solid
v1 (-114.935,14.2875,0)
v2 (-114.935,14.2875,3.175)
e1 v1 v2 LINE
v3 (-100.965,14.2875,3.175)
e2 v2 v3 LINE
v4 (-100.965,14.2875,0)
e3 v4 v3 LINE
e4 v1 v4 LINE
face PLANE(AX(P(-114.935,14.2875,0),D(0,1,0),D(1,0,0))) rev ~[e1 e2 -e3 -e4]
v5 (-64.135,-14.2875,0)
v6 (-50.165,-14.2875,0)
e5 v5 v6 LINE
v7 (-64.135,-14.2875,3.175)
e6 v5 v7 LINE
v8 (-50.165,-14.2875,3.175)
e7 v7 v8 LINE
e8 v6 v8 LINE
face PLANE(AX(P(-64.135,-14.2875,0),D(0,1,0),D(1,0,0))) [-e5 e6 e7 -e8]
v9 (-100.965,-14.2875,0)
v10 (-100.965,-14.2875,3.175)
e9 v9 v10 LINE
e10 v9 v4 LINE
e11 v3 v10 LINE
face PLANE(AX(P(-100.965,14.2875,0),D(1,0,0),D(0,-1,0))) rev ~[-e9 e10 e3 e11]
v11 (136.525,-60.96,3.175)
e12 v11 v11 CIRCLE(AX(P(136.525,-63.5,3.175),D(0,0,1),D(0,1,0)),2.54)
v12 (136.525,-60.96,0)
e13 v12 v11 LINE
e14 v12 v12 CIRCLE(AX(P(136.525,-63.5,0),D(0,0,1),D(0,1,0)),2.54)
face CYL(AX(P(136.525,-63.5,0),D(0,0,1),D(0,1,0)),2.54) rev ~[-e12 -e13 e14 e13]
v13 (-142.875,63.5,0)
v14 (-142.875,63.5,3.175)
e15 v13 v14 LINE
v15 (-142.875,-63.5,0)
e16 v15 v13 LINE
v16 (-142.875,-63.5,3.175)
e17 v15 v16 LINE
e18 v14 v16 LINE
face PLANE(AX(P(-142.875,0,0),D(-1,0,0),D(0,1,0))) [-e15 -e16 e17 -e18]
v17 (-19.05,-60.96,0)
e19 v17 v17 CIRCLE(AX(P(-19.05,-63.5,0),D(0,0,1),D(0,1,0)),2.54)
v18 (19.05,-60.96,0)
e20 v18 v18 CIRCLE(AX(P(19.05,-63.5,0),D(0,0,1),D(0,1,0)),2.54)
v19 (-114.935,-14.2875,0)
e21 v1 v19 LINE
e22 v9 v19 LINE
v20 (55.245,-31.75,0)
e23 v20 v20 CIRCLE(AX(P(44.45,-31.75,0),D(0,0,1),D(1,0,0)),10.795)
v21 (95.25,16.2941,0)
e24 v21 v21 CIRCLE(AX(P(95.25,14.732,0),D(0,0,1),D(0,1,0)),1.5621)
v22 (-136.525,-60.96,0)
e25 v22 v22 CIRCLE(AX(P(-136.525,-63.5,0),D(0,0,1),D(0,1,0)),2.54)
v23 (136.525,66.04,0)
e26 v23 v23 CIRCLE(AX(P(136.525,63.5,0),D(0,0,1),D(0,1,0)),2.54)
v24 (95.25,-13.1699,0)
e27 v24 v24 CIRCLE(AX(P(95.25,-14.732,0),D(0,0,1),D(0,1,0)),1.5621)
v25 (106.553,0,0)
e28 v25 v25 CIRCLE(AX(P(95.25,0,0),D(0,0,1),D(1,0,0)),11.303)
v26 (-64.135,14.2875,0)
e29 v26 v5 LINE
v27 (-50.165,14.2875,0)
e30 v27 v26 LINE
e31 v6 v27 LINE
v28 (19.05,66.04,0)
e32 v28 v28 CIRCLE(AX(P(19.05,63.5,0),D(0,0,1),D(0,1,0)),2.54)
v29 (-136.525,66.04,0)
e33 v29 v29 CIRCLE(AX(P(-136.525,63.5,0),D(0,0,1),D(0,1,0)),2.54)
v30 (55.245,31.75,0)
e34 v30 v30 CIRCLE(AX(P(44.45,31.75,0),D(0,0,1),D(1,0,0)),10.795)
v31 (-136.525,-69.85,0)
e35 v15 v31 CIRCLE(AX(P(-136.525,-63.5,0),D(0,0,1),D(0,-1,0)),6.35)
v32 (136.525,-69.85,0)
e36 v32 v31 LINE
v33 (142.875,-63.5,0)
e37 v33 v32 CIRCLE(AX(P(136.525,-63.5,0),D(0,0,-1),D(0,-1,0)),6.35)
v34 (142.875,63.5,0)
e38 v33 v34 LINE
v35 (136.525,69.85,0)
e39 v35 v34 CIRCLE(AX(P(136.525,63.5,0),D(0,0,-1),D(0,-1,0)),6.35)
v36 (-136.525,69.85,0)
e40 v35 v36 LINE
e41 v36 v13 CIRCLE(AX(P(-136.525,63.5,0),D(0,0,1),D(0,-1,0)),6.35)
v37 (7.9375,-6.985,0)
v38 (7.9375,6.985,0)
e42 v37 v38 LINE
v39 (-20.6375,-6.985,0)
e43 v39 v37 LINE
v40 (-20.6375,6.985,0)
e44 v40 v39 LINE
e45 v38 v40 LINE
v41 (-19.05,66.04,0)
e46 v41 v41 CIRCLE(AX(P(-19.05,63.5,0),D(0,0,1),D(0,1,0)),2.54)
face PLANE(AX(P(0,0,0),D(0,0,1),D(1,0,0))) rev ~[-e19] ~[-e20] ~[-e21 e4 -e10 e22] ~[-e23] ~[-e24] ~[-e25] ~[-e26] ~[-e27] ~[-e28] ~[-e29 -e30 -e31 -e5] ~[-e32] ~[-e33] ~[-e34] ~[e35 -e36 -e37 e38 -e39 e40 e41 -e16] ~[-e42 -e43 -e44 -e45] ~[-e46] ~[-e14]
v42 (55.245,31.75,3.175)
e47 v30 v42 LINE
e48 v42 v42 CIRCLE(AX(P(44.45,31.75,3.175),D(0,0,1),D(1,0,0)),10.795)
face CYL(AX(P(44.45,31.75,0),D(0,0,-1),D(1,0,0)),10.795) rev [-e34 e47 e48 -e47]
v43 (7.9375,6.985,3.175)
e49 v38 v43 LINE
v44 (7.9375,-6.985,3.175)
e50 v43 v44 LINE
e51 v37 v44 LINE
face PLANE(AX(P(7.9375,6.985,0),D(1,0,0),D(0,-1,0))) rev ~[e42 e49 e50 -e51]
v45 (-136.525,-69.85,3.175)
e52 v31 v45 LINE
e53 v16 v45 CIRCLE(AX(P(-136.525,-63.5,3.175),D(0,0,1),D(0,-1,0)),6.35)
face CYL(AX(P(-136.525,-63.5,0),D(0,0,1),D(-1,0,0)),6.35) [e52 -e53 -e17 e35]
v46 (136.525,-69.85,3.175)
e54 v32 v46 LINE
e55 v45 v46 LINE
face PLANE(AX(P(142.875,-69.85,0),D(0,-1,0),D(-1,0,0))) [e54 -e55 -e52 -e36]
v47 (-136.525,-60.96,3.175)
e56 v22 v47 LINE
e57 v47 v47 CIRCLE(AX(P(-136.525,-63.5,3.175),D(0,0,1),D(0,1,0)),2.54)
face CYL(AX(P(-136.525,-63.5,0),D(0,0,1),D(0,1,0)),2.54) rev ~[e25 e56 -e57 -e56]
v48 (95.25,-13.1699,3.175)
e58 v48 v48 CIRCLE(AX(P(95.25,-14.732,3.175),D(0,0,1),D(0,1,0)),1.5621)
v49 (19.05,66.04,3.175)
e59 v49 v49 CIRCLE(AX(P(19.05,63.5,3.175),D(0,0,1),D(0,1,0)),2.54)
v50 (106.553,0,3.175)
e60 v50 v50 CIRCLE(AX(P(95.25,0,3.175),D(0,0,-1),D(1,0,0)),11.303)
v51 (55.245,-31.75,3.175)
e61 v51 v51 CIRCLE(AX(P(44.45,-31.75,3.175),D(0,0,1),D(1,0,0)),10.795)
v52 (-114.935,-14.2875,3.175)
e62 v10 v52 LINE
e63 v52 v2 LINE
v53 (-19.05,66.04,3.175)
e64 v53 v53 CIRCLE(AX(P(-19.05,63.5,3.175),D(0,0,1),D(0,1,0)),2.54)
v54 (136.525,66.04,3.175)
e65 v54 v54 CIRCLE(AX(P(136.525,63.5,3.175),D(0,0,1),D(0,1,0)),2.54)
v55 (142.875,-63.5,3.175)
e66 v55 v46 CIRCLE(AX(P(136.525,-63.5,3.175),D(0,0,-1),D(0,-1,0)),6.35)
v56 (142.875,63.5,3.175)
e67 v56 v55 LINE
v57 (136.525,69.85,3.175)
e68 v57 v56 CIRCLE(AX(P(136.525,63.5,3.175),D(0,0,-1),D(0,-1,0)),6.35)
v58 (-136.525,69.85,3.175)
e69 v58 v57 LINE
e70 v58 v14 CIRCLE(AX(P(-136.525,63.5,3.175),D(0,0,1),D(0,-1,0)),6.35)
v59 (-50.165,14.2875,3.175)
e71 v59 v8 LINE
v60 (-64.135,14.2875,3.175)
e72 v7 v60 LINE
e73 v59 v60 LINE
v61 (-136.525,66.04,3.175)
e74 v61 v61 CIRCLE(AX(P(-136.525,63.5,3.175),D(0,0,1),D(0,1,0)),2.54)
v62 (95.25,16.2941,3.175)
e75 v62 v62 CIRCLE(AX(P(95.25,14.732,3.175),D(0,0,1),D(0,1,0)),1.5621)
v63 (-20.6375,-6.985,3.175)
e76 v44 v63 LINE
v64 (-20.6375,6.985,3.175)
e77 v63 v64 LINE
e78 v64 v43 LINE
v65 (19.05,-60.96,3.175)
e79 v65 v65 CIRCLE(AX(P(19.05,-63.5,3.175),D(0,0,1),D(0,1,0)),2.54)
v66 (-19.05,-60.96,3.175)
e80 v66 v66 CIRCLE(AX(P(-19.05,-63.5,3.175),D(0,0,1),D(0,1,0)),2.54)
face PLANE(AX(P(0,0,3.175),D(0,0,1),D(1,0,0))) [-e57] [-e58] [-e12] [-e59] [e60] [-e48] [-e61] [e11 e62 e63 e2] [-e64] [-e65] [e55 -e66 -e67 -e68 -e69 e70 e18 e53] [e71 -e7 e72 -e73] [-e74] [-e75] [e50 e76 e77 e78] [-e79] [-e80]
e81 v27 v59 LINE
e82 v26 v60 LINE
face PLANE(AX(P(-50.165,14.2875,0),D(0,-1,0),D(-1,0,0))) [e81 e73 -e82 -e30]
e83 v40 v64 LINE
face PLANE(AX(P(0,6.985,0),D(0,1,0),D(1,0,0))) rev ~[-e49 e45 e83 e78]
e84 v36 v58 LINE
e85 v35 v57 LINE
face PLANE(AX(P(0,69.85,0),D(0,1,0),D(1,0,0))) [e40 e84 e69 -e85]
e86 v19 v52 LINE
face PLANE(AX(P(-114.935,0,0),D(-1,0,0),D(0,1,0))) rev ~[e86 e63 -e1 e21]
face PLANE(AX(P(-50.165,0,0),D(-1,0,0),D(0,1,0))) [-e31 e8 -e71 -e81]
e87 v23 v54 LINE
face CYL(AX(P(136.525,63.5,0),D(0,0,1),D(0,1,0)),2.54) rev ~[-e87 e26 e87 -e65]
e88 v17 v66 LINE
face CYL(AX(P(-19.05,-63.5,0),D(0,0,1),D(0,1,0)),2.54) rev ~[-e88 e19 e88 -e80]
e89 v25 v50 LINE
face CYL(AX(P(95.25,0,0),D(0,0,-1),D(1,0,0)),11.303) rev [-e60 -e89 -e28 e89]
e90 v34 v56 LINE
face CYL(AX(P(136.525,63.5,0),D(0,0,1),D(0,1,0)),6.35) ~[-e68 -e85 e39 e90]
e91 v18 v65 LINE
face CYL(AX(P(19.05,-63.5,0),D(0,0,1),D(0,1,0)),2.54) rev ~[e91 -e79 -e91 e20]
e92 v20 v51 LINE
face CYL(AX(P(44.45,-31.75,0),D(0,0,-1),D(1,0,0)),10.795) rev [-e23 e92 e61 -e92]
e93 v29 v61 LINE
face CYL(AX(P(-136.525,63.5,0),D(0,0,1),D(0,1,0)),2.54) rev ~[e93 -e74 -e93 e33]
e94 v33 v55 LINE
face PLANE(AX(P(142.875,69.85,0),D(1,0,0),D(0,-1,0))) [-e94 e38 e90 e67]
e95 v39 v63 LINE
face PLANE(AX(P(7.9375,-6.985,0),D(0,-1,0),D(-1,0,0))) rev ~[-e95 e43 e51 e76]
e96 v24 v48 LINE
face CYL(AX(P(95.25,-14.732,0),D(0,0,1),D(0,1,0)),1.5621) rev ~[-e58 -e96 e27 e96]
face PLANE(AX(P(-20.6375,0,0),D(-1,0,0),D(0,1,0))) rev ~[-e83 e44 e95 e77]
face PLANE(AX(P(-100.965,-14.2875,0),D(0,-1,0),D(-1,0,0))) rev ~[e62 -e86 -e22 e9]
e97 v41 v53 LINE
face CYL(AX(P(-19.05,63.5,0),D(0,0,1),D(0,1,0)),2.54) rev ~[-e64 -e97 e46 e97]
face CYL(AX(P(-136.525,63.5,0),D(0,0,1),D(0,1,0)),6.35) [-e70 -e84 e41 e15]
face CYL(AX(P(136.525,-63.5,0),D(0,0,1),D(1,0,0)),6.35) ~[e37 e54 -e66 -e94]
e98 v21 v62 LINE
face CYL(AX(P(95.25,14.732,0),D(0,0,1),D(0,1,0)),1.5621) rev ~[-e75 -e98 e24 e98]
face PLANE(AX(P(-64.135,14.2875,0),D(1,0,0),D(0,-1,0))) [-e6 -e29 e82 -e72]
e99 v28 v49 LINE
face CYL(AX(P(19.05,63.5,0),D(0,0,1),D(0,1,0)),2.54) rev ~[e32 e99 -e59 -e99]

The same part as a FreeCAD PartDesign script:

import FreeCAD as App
import Part
import Sketcher
from FreeCAD import Vector
Q = App.Units.Quantity


def edges_at(feature, points):
    """Names of the edges that pass closest to the given points."""
    edges = feature.Shape.Edges
    near = lambda p: min(range(len(edges)), key=lambda i: edges[i].distToShape(Part.Vertex(*p))[0])
    return sorted({f"Edge{near(p) + 1}" for p in points})


def add_polygon(sketch, points):
    """Adds a closed chain of lines whose ends are joined by coincident constraints."""
    first, n = sketch.GeometryCount, len(points)
    for a, b in zip(points, points[1:] + points[:1]):
        sketch.addGeometry(Part.LineSegment(App.Vector(*a, 0), App.Vector(*b, 0)), False)
    for i in range(n):
        sketch.addConstraint(Sketcher.Constraint("Coincident", first + i, 2, first + (i + 1) % n, 1))

doc = App.newDocument("Part")
body = doc.addObject("PartDesign::Body", "Body")

sketch1 = body.newObject("Sketcher::SketchObject", "Sketch")
sketch1.AttachmentSupport = (doc.getObject("XY_Plane"), [""])
sketch1.MapMode = "FlatFace"
add_polygon(sketch1, [(143, 70), (-143, 70), (-143, -70), (143, -70)])
sketch1.addGeometry(Part.Circle(Vector(95, 0, 0), Vector(0, 0, 1), 11), False)
add_polygon(sketch1, [(8, 7), (8, -7), (-21, -7), (-21, 7)])
sketch1.addGeometry(Part.Circle(Vector(44, 32, 0), Vector(0, 0, 1), 11), False)
sketch1.addGeometry(Part.Circle(Vector(44, -32, 0), Vector(0, 0, 1), 11), False)
add_polygon(sketch1, [(-50, 14), (-50, -14), (-64, -14), (-64, 14)])
add_polygon(sketch1, [(-101, 14), (-101, -14), (-115, -14), (-115, 14)])
sketch1.addConstraint([
    Sketcher.Constraint("Horizontal", 0),
    Sketcher.Constraint("Vertical", 1),
    Sketcher.Constraint("Horizontal", 2),
    Sketcher.Constraint("Vertical", 3),
    Sketcher.Constraint("Vertical", 5),
    Sketcher.Constraint("Horizontal", 6),
    Sketcher.Constraint("Vertical", 7),
    Sketcher.Constraint("Horizontal", 8),
    Sketcher.Constraint("Vertical", 11),
    Sketcher.Constraint("Horizontal", 12),
    Sketcher.Constraint("Vertical", 13),
    Sketcher.Constraint("Horizontal", 14),
    Sketcher.Constraint("Vertical", 15),
    Sketcher.Constraint("Horizontal", 16),
    Sketcher.Constraint("Vertical", 17),
    Sketcher.Constraint("Horizontal", 18),
    Sketcher.Constraint("Equal", 9, 10),
    Sketcher.Constraint("Symmetric", 0, 2, 2, 2, -1, 1),
    Sketcher.Constraint("Symmetric", 9, 3, 10, 3, -1),
    Sketcher.Constraint("PointOnObject", 4, 3, -1),
    Sketcher.Constraint("Horizontal", 12, 2, 15, 2),
    Sketcher.Constraint("Horizontal", 14, 2, 17, 2),
    Sketcher.Constraint("Equal", 14, 16),
    Sketcher.Constraint("Equal", 18, 5),
    Sketcher.Constraint("Equal", 8, 11),
    Sketcher.Constraint("Diameter", 4, Q("0.89 in")),
    Sketcher.Constraint("Diameter", 9, Q("0.85 in")),
    Sketcher.Constraint("DistanceY", 1, 2, 1, 1, Q("5.5 in")),
    Sketcher.Constraint("DistanceX", 9, 3, 4, 3, Q("2 in")),
    Sketcher.Constraint("DistanceX", 15, 2, 11, 2, Q("2 in")),
    Sketcher.Constraint("DistanceX", 0, 2, 0, 1, Q("11.25 in")),
    Sketcher.Constraint("DistanceX", 12, 2, 12, 1, Q("0.55 in")),
    Sketcher.Constraint("DistanceX", 6, 2, 6, 1, Q("1.125 in")),
    Sketcher.Constraint("DistanceY", -1, 1, 9, 3, Q("1.25 in")),
    Sketcher.Constraint("DistanceX", 4, 3, 2, 2, Q("1.875 in")),
    Sketcher.Constraint("DistanceX", 1, 2, 16, 2, Q("1.1 in")),
    Sketcher.Constraint("DistanceX", -1, 1, 5, 2, Q("0.3125 in")),
    Sketcher.Constraint("DistanceY", 5, 2, -1, 1, Q("0.275 in")),
    Sketcher.Constraint("DistanceY", 11, 2, -1, 1, Q("0.5625 in")),
])
pad1 = body.newObject("PartDesign::Pad", "Pad")
pad1.Profile = sketch1
pad1.Length = Q("0.125 in")

sketch2 = body.newObject("Sketcher::SketchObject", "Sketch001")
sketch2.AttachmentSupport = (doc.getObject("XY_Plane"), [""])
sketch2.MapMode = "FlatFace"
sketch2.addGeometry([
    Part.Circle(Vector(-136.5, 63.5, 0), Vector(0, 0, 1), 2.5),
    Part.Circle(Vector(-136.5, -63.5, 0), Vector(0, 0, 1), 2.5),
    Part.Circle(Vector(136.5, 63.5, 0), Vector(0, 0, 1), 2.5),
    Part.Circle(Vector(136.5, -63.5, 0), Vector(0, 0, 1), 2.5),
    Part.Circle(Vector(19.1, -63.5, 0), Vector(0, 0, 1), 2.5),
    Part.Circle(Vector(-19.1, 63.5, 0), Vector(0, 0, 1), 2.5),
    Part.Circle(Vector(19.1, 63.5, 0), Vector(0, 0, 1), 2.5),
    Part.Circle(Vector(-19.1, -63.5, 0), Vector(0, 0, 1), 2.5),
], False)
sketch2.addConstraint([
    Sketcher.Constraint("Equal", 0, 1),
    Sketcher.Constraint("Equal", 1, 2),
    Sketcher.Constraint("Equal", 2, 3),
    Sketcher.Constraint("Equal", 3, 4),
    Sketcher.Constraint("Equal", 4, 5),
    Sketcher.Constraint("Equal", 5, 6),
    Sketcher.Constraint("Equal", 6, 7),
    Sketcher.Constraint("Symmetric", 1, 3, 2, 3, -1, 1),
    Sketcher.Constraint("Symmetric", 0, 3, 3, 3, -1, 1),
    Sketcher.Constraint("Symmetric", 4, 3, 5, 3, -1, 1),
    Sketcher.Constraint("Symmetric", 6, 3, 7, 3, -1, 1),
    Sketcher.Constraint("Symmetric", 0, 3, 2, 3, -2),
    Sketcher.Constraint("Symmetric", 5, 3, 6, 3, -2),
    Sketcher.Constraint("Horizontal", 3, 3, 4, 3),
    Sketcher.Constraint("Diameter", 0, Q("0.2 in")),
    Sketcher.Constraint("DistanceY", 1, 3, 0, 3, Q("5 in")),
    Sketcher.Constraint("DistanceX", 5, 3, 4, 3, Q("1.5 in")),
    Sketcher.Constraint("DistanceX", 0, 3, 2, 3, Q("10.75 in")),
])
doc.recompute()
hole = body.newObject("PartDesign::Hole", "Hole")
hole.Profile = sketch2
hole.ThreadType = "None"
hole.Diameter = Q("0.2 in")
hole.DepthType = "ThroughAll"
hole.Reversed = True
doc.recompute()

fillet = body.newObject("PartDesign::Fillet", "Fillet")
fillet.Base = (hole, edges_at(hole, [
    (142.875, -69.85, 1.587),
    (142.875, 69.85, 1.587),
    (-142.875, -69.85, 1.587),
    (-142.875, 69.85, 1.587),
]))
fillet.Radius = Q("0.25 in")

sketch3 = body.newObject("Sketcher::SketchObject", "Sketch002")
sketch3.AttachmentSupport = (doc.getObject("XY_Plane"), [""])
sketch3.MapMode = "FlatFace"
sketch3.addGeometry([
    Part.Circle(Vector(95.2, 14.7, 0), Vector(0, 0, 1), 1.6),
    Part.Circle(Vector(95.2, -14.7, 0), Vector(0, 0, 1), 1.6),
], False)
sketch3.addConstraint([
    Sketcher.Constraint("Equal", 0, 1),
    Sketcher.Constraint("Symmetric", 0, 3, 1, 3, -1),
    Sketcher.Constraint("Diameter", 0, Q("0.123 in")),
    Sketcher.Constraint("DistanceX", -1, 1, 0, 3, Q("3.75 in")),
    Sketcher.Constraint("DistanceY", -1, 1, 0, 3, Q("0.58 in")),
])
doc.recompute()
hole2 = body.newObject("PartDesign::Hole", "Hole001")
hole2.Profile = sketch3
hole2.ThreadType = "None"
hole2.Diameter = Q("0.123 in")
hole2.DepthType = "ThroughAll"
hole2.Reversed = True

doc.recompute()
